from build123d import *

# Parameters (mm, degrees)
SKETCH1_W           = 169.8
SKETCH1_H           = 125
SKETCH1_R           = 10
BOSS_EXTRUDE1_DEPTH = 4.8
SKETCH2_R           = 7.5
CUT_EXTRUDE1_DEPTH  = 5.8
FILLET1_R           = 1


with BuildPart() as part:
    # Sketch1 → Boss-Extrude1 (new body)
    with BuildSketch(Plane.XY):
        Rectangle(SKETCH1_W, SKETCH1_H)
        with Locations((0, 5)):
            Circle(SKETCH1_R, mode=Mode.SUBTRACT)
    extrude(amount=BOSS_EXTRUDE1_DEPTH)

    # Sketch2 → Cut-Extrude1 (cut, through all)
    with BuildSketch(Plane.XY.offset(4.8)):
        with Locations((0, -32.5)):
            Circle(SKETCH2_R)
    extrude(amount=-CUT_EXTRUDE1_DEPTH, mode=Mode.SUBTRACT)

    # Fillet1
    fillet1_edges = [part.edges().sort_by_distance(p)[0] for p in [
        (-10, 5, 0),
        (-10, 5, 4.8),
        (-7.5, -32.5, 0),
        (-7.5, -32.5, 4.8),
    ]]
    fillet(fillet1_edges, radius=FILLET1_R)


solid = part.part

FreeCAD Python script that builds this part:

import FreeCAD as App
import Part
import Sketcher
from FreeCAD import Vector


def edges_at(feature, points):
    """Names of the edges that pass closest to the given points."""
    edges = feature.Shape.Edges
    near = lambda p: min(range(len(edges)), key=lambda i: edges[i].distToShape(Part.Vertex(*p))[0])
    return sorted({f"Edge{near(p) + 1}" for p in points})

doc = App.newDocument("Part")
body = doc.addObject("PartDesign::Body", "Body")

# Sketch on XY plane
sketch1 = body.newObject("Sketcher::SketchObject", "Sketch")
sketch1.AttachmentSupport = (doc.getObject("XY_Plane"), [""])
sketch1.MapMode = "FlatFace"
sketch1.addGeometry([
    Part.LineSegment(Vector(-84.9, 62.5, 0), Vector(-84.9, -62.5, 0)),  # 0
    Part.LineSegment(Vector(-84.9, -62.5, 0), Vector(84.9, -62.5, 0)),  # 1
    Part.LineSegment(Vector(84.9, -62.5, 0), Vector(84.9, 62.5, 0)),  # 2
    Part.LineSegment(Vector(84.9, 62.5, 0), Vector(-84.9, 62.5, 0)),  # 3
    Part.Circle(Vector(0, 5, 0), Vector(0, 0, 1), 10),  # 4
], False)
sketch1.addConstraint([
    Sketcher.Constraint("Coincident", 0, 2, 1, 1),
    Sketcher.Constraint("Coincident", 1, 2, 2, 1),
    Sketcher.Constraint("Coincident", 2, 2, 3, 1),
    Sketcher.Constraint("Coincident", 3, 2, 0, 1),
    Sketcher.Constraint("Vertical", 0),
    Sketcher.Constraint("Horizontal", 1),
    Sketcher.Constraint("Vertical", 2),
    Sketcher.Constraint("Horizontal", 3),
    Sketcher.Constraint("Symmetric", 0, 2, 2, 2, -1, 1),
    Sketcher.Constraint("PointOnObject", 4, 3, -2),
    Sketcher.Constraint("Diameter", 4, 20.0),
    Sketcher.Constraint("DistanceY", 0, 2, 0, 1, 125.0),
    Sketcher.Constraint("DistanceX", 1, 1, 1, 2, 169.8),
    Sketcher.Constraint("DistanceY", -1, 1, 4, 3, 5.0),
])
pad1 = body.newObject("PartDesign::Pad", "Pad")
pad1.Profile = sketch1
pad1.Length = 4.8

# Sketch on XY plane
sketch2 = body.newObject("Sketcher::SketchObject", "Sketch001")
sketch2.AttachmentSupport = (doc.getObject("XY_Plane"), [""])
sketch2.MapMode = "FlatFace"
sketch2.AttachmentOffset = App.Placement(Vector(0, 0, 4.8), App.Rotation())
sketch2.addGeometry(Part.Circle(Vector(0, -32.5, 0), Vector(0, 0, 1), 7.5), False)
sketch2.addConstraint([
    Sketcher.Constraint("PointOnObject", 0, 3, -2),
    Sketcher.Constraint("Diameter", 0, 15.0),
    Sketcher.Constraint("DistanceY", 0, 3, -1, 1, 32.5),
])
pocket1 = body.newObject("PartDesign::Pocket", "Pocket")
pocket1.Profile = sketch2
pocket1.Type = "ThroughAll"
doc.recompute()

fillet = body.newObject("PartDesign::Fillet", "Fillet")
fillet.Base = (pocket1, edges_at(pocket1, [
    (-10, 5, 0),
    (-10, 5, 4.8),
    (-7.5, -32.5, 0),
    (-7.5, -32.5, 4.8),
]))
fillet.Radius = 1

doc.recompute()
